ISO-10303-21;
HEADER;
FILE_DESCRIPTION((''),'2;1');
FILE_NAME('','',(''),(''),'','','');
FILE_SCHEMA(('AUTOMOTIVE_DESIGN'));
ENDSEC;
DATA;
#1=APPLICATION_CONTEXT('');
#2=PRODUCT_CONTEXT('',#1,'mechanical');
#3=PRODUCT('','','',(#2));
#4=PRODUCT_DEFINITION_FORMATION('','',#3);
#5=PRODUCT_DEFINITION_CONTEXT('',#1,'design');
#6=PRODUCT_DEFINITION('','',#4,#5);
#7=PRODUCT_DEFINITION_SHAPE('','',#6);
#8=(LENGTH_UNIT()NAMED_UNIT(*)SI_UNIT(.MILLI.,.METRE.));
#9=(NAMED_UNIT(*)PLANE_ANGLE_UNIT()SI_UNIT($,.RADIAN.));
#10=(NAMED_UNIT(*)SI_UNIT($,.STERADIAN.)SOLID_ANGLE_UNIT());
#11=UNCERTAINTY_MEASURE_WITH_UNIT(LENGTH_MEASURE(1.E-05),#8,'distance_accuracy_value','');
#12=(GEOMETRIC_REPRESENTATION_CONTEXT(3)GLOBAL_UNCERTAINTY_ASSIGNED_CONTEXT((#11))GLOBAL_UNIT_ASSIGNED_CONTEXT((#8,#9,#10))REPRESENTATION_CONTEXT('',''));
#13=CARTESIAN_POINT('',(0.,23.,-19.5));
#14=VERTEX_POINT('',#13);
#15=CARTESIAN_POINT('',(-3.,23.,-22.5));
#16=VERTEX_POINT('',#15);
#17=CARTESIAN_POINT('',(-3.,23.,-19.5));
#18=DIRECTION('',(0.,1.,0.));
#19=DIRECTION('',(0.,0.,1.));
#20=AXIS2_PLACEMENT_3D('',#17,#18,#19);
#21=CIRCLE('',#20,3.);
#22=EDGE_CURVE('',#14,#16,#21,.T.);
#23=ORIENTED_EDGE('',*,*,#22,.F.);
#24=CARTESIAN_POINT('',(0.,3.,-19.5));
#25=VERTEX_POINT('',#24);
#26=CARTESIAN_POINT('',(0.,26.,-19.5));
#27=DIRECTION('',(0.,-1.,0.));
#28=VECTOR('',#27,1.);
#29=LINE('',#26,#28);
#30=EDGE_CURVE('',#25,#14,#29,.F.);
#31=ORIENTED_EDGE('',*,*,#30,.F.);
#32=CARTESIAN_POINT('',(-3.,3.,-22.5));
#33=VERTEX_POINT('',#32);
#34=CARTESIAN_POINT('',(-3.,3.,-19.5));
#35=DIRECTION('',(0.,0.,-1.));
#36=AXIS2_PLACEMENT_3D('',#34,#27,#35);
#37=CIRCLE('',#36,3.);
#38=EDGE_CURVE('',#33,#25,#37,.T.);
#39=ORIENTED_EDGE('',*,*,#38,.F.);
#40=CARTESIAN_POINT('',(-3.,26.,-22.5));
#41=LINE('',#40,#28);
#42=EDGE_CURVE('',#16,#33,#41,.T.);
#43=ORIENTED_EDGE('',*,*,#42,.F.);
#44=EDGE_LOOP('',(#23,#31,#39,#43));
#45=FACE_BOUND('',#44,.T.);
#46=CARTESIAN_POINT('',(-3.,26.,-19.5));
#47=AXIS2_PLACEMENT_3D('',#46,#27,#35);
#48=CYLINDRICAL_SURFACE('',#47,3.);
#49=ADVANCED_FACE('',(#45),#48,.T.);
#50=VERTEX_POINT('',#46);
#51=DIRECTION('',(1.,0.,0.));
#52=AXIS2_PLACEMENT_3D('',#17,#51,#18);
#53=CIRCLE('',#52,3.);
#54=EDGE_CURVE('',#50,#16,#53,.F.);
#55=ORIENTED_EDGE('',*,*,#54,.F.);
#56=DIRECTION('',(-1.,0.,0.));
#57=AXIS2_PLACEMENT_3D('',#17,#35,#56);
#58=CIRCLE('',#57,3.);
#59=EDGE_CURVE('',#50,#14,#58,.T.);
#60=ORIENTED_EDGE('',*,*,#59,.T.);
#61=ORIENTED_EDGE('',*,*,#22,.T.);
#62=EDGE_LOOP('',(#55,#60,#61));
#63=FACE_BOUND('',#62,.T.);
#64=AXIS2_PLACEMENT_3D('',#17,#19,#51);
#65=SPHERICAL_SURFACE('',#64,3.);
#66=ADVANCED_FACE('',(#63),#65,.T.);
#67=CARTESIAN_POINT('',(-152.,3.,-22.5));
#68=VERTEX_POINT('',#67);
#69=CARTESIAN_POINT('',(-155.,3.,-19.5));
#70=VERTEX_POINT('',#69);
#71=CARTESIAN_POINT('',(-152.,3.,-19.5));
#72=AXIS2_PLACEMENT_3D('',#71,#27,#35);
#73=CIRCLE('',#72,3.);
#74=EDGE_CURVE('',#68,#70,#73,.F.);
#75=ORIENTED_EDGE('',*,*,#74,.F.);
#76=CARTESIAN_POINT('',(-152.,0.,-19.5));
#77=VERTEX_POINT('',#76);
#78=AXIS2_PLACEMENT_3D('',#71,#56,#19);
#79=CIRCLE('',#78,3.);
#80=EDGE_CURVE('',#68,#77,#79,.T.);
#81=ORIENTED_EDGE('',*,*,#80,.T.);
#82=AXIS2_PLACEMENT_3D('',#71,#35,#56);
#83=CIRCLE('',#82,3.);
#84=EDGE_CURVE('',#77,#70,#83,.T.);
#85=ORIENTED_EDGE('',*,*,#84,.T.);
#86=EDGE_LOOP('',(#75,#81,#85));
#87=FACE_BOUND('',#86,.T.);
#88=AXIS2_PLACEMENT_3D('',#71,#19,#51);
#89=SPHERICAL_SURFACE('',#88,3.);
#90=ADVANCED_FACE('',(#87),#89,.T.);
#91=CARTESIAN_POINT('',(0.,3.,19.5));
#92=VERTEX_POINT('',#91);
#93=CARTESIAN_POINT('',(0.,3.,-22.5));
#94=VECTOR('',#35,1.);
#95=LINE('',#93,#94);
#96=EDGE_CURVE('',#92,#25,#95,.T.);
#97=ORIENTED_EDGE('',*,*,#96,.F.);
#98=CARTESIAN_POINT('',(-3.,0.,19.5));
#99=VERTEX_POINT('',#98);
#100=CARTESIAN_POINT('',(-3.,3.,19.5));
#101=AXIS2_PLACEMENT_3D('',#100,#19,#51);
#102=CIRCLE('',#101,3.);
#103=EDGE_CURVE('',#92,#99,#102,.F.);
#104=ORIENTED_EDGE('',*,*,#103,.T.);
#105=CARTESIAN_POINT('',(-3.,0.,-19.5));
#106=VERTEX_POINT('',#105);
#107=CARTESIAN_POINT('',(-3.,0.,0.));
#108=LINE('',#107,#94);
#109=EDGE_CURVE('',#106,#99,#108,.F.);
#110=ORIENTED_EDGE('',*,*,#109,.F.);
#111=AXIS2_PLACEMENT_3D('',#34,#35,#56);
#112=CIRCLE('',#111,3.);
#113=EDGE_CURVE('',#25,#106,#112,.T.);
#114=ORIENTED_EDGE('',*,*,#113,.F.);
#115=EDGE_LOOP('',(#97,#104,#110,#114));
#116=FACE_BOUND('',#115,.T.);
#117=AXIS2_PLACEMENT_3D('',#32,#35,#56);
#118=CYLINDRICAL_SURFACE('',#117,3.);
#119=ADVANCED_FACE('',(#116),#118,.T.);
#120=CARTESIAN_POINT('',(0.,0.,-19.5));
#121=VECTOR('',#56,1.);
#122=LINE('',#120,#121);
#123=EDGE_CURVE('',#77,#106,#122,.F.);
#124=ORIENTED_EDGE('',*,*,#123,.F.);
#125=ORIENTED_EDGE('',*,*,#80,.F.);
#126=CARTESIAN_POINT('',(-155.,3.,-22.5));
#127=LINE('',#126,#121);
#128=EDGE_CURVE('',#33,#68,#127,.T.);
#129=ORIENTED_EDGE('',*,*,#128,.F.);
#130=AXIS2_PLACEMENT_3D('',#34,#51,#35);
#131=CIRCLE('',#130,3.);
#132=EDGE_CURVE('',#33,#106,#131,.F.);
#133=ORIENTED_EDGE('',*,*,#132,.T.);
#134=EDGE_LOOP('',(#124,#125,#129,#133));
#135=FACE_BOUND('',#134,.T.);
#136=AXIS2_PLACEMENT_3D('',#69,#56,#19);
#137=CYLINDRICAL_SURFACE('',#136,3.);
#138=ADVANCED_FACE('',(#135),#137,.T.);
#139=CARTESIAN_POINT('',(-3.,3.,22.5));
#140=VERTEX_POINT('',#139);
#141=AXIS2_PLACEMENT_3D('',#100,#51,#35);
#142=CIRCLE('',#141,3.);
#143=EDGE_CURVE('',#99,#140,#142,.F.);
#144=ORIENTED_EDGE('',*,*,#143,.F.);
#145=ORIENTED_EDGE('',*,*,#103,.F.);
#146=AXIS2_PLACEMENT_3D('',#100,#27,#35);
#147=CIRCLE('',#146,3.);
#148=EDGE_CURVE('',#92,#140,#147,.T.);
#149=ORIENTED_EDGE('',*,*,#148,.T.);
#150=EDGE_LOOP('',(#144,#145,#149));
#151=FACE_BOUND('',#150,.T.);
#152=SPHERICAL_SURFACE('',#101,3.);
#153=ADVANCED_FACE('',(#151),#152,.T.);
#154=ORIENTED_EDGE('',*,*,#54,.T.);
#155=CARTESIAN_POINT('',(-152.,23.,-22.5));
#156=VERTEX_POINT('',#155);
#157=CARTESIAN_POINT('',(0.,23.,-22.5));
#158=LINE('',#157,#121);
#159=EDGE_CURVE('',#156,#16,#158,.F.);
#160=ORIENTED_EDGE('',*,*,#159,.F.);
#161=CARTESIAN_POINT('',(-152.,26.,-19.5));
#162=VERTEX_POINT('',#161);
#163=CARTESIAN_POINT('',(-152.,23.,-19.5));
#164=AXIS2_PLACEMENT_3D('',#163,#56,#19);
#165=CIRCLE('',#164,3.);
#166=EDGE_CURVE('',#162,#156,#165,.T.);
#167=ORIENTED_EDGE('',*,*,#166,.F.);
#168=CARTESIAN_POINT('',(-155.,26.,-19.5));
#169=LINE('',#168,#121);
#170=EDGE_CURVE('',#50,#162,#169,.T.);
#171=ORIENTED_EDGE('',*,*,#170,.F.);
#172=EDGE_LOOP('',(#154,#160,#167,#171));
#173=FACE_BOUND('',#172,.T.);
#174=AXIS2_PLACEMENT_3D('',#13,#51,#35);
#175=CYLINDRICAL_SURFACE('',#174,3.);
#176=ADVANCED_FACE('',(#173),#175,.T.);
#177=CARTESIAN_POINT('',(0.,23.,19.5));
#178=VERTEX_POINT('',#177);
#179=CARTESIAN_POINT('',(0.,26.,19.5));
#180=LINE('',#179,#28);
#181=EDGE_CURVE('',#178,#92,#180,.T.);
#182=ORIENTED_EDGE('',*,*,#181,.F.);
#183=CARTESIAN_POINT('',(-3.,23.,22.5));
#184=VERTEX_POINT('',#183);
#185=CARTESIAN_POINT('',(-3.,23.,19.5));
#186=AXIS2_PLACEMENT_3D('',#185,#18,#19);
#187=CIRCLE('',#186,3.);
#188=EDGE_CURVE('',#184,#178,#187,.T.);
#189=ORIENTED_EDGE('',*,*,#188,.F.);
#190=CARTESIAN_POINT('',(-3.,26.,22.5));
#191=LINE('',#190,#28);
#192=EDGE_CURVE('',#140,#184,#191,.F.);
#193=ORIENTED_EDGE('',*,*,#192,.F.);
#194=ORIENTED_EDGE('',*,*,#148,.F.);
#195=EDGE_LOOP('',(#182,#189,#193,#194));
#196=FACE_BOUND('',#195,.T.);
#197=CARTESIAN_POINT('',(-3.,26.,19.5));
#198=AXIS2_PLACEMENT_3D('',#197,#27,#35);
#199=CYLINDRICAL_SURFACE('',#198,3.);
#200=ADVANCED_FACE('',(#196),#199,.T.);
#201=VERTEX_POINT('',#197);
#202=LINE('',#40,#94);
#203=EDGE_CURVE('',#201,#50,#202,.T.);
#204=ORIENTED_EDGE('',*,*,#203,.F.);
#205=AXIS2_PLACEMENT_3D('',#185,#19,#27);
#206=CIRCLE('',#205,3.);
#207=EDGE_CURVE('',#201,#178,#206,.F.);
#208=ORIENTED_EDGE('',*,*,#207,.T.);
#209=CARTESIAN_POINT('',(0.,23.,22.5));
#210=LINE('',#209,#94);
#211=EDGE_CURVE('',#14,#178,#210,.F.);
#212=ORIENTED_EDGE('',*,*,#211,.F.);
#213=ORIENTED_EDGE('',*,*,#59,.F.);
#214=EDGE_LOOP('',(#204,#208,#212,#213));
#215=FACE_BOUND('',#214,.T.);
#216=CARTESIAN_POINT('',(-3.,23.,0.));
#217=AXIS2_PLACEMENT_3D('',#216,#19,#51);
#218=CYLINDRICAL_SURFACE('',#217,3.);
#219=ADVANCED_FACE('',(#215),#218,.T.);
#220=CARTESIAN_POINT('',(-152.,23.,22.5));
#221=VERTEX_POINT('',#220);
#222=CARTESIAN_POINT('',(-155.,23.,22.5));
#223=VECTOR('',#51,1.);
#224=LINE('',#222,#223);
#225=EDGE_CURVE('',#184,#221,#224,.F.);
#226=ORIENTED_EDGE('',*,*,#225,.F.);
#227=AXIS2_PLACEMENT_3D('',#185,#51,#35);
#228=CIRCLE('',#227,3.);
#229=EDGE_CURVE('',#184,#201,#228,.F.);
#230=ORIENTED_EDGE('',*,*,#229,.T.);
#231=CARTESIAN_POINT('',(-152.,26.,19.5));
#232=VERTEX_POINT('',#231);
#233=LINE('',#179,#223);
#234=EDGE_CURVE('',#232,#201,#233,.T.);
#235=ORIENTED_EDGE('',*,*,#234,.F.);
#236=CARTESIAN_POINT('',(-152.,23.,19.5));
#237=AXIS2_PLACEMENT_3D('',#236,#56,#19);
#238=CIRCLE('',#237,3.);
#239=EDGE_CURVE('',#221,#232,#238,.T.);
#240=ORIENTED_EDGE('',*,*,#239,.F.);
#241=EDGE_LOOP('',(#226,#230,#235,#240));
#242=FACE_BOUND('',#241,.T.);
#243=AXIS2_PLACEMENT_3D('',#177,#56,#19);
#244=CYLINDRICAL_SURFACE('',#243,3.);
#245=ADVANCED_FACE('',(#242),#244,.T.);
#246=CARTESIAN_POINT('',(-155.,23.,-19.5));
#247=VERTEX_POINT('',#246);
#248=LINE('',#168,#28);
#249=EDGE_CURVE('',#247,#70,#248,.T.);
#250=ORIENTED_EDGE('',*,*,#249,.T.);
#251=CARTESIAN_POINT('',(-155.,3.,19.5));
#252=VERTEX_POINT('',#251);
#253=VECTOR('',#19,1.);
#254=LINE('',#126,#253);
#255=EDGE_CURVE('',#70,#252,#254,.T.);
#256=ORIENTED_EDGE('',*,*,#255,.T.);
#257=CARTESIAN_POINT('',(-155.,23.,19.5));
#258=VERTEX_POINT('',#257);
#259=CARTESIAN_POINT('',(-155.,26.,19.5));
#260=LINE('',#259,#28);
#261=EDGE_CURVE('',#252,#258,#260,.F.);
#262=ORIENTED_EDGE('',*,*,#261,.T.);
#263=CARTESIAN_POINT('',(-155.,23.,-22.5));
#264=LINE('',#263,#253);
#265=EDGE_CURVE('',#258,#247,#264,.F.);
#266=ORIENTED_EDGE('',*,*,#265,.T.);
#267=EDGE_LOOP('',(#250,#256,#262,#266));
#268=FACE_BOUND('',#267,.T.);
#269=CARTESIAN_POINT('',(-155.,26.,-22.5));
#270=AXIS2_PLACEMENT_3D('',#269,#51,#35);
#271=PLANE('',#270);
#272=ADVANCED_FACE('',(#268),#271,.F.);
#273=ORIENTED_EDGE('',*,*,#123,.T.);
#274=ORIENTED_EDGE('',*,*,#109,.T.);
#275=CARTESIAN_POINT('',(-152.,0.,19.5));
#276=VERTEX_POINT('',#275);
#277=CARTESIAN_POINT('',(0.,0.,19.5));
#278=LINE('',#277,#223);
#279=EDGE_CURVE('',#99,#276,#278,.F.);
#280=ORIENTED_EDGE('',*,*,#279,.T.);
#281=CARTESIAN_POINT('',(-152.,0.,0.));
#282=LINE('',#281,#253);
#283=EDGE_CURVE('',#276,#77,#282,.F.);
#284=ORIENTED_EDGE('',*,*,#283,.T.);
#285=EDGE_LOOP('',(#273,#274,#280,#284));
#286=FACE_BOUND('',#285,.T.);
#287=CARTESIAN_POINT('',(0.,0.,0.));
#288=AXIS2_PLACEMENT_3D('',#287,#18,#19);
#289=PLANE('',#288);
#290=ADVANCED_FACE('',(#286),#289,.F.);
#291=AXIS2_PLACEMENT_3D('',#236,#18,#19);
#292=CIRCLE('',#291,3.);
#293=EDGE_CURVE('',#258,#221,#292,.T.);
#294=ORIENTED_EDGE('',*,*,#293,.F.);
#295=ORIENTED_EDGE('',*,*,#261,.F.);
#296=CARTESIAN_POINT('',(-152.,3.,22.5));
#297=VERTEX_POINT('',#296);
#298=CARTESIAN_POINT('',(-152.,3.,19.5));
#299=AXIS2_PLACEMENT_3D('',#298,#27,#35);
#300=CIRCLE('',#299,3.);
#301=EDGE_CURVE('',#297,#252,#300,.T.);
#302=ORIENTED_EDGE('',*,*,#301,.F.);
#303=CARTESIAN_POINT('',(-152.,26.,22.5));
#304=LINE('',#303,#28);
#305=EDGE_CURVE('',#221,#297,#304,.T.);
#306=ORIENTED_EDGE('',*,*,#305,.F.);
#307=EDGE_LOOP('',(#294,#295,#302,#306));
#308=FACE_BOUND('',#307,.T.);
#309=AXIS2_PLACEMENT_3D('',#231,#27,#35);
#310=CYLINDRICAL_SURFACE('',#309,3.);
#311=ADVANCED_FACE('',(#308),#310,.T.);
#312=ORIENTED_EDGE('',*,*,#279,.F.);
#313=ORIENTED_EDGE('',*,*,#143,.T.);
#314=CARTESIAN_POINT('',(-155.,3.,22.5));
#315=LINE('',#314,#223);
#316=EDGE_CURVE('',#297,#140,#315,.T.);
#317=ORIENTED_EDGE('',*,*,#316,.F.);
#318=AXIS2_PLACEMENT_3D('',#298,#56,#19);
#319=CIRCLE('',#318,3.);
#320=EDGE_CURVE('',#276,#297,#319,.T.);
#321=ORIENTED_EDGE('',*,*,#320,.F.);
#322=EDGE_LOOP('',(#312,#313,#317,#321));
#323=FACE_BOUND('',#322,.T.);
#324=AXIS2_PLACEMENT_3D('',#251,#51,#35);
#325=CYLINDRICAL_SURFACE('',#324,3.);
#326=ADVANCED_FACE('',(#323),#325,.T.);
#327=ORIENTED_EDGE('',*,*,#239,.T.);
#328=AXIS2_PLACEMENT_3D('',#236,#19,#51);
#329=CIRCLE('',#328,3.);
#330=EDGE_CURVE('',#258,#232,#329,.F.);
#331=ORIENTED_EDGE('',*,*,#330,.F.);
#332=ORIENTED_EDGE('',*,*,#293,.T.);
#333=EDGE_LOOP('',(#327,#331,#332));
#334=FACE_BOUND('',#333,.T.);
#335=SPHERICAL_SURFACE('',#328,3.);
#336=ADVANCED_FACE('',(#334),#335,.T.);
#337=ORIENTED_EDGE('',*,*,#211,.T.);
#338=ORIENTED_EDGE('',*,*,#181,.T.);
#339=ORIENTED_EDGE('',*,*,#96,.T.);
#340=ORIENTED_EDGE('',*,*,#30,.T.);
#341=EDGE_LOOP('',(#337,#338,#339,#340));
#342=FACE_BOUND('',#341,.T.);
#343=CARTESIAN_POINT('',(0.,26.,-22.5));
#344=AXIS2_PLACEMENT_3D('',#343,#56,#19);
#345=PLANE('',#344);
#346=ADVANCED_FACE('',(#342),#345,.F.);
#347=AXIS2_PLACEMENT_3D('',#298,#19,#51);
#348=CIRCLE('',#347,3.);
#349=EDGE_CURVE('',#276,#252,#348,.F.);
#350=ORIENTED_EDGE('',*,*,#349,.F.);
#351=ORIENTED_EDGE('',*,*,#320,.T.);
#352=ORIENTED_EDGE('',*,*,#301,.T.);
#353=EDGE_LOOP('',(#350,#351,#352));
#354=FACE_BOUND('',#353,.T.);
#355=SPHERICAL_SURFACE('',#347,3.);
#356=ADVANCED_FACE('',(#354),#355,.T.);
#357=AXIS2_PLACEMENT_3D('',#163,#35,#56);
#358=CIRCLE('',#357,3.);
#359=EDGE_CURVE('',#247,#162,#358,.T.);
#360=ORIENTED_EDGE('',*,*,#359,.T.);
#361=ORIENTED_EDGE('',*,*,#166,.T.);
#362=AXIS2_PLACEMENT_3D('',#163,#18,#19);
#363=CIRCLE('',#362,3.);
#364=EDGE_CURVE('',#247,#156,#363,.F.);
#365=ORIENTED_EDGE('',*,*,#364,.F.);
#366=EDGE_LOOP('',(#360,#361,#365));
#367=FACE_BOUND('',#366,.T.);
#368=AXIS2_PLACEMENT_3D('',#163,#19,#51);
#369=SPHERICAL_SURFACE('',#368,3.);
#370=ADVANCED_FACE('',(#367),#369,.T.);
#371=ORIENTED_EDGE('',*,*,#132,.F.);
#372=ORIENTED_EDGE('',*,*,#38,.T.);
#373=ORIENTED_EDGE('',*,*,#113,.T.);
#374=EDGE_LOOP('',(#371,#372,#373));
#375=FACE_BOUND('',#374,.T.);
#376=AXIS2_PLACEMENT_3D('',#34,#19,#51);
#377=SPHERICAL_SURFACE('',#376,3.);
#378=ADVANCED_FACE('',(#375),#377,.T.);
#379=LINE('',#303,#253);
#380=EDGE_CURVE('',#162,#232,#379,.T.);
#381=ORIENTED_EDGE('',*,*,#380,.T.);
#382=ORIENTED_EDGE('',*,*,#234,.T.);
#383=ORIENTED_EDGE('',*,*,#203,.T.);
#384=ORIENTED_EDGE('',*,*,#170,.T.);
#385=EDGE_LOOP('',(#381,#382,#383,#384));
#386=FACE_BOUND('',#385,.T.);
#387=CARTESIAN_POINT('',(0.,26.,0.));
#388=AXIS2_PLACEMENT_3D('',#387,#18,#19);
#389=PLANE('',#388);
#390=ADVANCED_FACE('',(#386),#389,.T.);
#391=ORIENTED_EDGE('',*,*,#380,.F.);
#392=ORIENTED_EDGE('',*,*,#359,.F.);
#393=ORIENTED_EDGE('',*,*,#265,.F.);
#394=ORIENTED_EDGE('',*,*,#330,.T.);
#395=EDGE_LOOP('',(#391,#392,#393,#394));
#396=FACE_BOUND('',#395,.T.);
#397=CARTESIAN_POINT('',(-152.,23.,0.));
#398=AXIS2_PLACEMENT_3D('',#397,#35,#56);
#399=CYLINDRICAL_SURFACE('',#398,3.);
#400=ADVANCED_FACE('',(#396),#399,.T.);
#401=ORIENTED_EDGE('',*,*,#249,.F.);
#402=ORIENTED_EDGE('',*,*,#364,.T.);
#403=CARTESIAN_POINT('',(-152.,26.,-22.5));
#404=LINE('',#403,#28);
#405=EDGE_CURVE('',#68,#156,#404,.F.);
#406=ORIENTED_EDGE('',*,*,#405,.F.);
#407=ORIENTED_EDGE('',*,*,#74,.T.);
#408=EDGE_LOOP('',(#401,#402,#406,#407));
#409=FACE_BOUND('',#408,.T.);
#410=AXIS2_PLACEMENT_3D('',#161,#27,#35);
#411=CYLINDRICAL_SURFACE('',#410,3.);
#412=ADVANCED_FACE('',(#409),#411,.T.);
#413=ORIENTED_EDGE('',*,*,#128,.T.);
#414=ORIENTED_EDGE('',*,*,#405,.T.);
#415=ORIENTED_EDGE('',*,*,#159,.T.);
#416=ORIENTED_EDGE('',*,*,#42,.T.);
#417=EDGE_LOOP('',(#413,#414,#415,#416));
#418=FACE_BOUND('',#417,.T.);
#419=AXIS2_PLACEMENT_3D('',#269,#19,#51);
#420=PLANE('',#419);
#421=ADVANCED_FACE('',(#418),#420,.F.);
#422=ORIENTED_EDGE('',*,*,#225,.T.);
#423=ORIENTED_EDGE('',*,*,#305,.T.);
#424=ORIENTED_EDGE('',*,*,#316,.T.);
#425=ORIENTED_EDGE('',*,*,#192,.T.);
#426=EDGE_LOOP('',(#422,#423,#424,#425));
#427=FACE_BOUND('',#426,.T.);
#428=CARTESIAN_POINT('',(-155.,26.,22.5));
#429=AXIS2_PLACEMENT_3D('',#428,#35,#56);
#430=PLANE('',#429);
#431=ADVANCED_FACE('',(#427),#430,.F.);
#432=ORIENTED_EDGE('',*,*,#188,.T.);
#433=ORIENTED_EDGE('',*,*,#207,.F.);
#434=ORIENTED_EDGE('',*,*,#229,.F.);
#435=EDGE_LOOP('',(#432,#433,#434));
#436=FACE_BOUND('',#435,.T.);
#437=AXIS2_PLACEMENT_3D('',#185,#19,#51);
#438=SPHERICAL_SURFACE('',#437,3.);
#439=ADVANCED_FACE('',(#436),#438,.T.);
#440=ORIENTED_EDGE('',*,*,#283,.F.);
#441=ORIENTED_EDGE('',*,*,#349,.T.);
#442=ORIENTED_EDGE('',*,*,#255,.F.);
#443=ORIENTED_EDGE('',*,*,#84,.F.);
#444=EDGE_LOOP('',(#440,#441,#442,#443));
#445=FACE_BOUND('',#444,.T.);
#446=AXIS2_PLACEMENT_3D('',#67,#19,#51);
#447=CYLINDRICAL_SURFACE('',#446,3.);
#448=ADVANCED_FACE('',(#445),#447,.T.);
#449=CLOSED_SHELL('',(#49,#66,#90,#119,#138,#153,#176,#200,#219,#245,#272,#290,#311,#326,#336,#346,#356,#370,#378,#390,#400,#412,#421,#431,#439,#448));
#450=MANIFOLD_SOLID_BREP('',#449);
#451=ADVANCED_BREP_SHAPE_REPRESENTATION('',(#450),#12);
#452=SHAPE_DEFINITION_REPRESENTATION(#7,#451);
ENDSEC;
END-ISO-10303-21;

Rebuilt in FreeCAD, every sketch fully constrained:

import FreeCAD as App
import Part
import Sketcher
from FreeCAD import Vector

doc = App.newDocument("Part")
body = doc.addObject("PartDesign::Body", "Body")

sketch1 = body.newObject("Sketcher::SketchObject", "Sketch")
sketch1.AttachmentSupport = (doc.getObject("XZ_Plane"), [""])
sketch1.MapMode = "FlatFace"
sketch1.addGeometry(Part.LineSegment(Vector(-155, -22.5, 0), Vector(-155, 22.5, 0)), False)
sketch1.addGeometry(Part.LineSegment(Vector(-155, 22.5, 0), Vector(0, 22.5, 0)), False)
sketch1.addGeometry(Part.LineSegment(Vector(0, 22.5, 0), Vector(0, -22.5, 0)), False)
sketch1.addGeometry(Part.LineSegment(Vector(0, -22.5, 0), Vector(-155, -22.5, 0)), False)
sketch1.addConstraint(Sketcher.Constraint("Coincident", 0, 2, 1, 1))
sketch1.addConstraint(Sketcher.Constraint("Coincident", 1, 2, 2, 1))
sketch1.addConstraint(Sketcher.Constraint("Coincident", 2, 2, 3, 1))
sketch1.addConstraint(Sketcher.Constraint("Coincident", 3, 2, 0, 1))
sketch1.addConstraint(Sketcher.Constraint("Vertical", 0))
sketch1.addConstraint(Sketcher.Constraint("Horizontal", 1))
sketch1.addConstraint(Sketcher.Constraint("Vertical", 2))
sketch1.addConstraint(Sketcher.Constraint("Horizontal", 3))
sketch1.addConstraint(Sketcher.Constraint("Symmetric", 1, 2, 2, 2, -1, 1))
sketch1.addConstraint(Sketcher.Constraint("DistanceX", 1, 1, 1, 2, 155.0))
sketch1.addConstraint(Sketcher.Constraint("DistanceY", 0, 1, 0, 2, 45.0))
pad1 = body.newObject("PartDesign::Pad", "Pad")
pad1.Profile = sketch1
pad1.Length = 26
pad1.Reversed = True
doc.recompute()

fillet = body.newObject("PartDesign::Fillet", "Fillet")
fillet.Base = (pad1, ["Edge1"])
fillet.UseAllEdges = True
fillet.Radius = 3

doc.recompute()
